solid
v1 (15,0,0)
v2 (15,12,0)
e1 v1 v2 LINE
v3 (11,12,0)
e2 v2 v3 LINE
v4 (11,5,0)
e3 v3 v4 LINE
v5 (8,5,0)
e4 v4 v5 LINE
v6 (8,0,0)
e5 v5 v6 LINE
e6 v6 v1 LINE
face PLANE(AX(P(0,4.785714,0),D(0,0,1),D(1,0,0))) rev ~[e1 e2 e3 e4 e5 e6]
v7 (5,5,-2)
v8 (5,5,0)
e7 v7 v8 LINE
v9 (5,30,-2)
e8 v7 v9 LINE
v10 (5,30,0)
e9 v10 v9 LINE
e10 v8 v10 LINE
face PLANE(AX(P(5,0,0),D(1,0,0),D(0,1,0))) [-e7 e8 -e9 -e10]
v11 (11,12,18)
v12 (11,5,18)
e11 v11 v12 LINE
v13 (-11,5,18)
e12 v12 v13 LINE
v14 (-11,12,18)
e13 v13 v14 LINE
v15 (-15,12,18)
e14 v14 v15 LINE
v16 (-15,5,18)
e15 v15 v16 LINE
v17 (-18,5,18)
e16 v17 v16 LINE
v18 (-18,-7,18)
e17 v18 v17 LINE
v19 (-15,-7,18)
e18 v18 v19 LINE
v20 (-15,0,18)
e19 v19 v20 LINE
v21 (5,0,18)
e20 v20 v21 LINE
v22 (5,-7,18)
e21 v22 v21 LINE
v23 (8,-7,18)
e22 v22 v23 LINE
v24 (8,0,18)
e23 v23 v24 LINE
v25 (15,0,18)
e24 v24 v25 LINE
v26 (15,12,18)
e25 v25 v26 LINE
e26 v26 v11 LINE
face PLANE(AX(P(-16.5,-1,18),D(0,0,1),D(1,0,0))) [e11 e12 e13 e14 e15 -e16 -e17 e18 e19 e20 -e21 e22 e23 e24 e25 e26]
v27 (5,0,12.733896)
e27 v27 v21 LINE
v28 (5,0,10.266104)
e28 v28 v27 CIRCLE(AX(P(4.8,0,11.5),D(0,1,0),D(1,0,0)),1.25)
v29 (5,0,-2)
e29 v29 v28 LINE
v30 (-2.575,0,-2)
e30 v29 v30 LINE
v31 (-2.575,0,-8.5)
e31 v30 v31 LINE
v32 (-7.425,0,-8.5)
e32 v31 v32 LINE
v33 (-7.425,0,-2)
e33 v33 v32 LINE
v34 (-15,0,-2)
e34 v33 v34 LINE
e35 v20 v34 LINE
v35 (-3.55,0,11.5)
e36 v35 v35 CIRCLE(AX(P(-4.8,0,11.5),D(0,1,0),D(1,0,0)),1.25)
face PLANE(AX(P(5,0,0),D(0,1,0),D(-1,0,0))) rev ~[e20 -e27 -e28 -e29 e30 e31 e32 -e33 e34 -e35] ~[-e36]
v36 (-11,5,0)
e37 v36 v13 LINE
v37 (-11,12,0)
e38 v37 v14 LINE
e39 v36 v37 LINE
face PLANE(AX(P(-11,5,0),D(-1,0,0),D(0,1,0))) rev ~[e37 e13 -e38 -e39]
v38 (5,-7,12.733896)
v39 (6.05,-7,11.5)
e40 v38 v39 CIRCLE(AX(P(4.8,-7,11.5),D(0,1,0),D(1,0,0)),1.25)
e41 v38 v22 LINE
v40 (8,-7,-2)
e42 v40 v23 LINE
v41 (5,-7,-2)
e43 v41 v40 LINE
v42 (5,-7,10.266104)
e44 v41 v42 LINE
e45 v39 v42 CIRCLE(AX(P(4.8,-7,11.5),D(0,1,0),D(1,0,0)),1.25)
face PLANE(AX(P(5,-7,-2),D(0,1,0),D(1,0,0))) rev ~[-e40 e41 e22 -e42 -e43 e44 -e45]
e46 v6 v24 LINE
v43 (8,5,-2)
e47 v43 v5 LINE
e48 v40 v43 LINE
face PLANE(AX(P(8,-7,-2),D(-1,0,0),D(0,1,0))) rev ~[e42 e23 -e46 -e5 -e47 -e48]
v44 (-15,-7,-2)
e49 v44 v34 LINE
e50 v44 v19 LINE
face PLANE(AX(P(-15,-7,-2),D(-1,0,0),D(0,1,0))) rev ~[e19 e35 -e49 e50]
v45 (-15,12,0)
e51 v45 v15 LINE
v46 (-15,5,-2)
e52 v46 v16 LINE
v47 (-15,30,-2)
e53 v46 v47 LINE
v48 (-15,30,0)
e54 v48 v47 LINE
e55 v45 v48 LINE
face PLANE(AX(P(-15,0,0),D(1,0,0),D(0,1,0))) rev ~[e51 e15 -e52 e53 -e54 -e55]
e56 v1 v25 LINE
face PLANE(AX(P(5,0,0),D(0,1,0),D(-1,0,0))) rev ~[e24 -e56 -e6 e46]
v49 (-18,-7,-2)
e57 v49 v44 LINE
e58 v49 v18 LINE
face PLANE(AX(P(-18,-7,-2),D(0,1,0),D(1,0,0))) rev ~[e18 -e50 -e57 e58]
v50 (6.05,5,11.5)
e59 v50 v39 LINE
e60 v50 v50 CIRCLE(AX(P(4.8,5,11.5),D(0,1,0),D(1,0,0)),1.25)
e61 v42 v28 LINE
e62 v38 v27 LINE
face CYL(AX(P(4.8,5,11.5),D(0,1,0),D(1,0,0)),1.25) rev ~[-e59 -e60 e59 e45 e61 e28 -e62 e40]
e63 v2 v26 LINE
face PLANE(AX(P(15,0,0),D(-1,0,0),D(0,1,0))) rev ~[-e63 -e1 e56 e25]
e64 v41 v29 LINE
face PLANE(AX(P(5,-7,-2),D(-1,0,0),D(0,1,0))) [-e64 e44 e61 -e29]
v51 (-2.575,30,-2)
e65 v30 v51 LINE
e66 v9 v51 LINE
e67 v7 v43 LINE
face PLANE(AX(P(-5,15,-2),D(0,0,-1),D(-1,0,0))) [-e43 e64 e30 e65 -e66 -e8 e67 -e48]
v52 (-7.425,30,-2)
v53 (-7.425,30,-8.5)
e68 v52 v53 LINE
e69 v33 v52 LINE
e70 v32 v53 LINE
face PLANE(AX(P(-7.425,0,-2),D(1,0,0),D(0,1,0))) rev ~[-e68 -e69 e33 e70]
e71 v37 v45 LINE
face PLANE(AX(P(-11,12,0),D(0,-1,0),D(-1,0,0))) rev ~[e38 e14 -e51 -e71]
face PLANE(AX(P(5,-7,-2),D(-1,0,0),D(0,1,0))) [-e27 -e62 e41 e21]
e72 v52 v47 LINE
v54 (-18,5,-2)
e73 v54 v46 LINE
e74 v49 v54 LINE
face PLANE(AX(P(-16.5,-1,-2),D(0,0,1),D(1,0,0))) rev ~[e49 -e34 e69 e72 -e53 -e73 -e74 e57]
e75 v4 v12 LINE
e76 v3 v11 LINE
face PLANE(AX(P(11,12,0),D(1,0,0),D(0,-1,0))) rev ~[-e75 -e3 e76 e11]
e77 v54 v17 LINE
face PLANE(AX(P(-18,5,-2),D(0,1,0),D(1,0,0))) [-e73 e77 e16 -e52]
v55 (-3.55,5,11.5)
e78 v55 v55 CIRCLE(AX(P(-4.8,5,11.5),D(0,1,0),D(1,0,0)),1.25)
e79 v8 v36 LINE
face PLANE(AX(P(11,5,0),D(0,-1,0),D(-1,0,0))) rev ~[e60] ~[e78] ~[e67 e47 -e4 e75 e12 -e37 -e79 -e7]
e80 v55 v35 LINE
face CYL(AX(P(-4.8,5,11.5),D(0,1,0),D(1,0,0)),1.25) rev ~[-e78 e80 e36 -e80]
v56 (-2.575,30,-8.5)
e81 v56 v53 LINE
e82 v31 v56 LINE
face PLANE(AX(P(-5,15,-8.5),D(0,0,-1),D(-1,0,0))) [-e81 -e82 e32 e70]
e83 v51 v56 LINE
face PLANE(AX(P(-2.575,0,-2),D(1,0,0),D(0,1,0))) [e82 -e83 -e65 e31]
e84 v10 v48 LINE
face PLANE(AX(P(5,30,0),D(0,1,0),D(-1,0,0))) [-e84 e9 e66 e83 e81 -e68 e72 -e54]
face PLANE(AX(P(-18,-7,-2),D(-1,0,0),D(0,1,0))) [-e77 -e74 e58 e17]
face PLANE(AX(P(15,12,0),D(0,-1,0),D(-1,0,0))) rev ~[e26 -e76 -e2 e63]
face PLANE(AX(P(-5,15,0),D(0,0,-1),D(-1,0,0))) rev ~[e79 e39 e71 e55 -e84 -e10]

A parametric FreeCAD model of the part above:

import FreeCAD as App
import Part
import Sketcher

doc = App.newDocument("Part")
body = doc.addObject("PartDesign::Body", "Body")

sketch1 = body.newObject("Sketcher::SketchObject", "Sketch")
sketch1.AttachmentSupport = (doc.getObject("XY_Plane"), [""])
sketch1.MapMode = "FlatFace"
sketch1.addGeometry([
    Part.LineSegment(App.Vector(-15, 12, 0), App.Vector(-15, 0, 0)),
    Part.LineSegment(App.Vector(-15, 0, 0), App.Vector(15, 0, 0)),
    Part.LineSegment(App.Vector(15, 0, 0), App.Vector(15, 12, 0)),
    Part.LineSegment(App.Vector(15, 12, 0), App.Vector(11, 12, 0)),
    Part.LineSegment(App.Vector(11, 12, 0), App.Vector(11, 5, 0)),
    Part.LineSegment(App.Vector(11, 5, 0), App.Vector(-11, 5, 0)),
    Part.LineSegment(App.Vector(-11, 5, 0), App.Vector(-11, 12, 0)),
    Part.LineSegment(App.Vector(-11, 12, 0), App.Vector(-15, 12, 0)),
], False)
sketch1.addConstraint([
    Sketcher.Constraint("Coincident", 0, 2, 1, 1),
    Sketcher.Constraint("Coincident", 1, 2, 2, 1),
    Sketcher.Constraint("Coincident", 2, 2, 3, 1),
    Sketcher.Constraint("Coincident", 3, 2, 4, 1),
    Sketcher.Constraint("Coincident", 4, 2, 5, 1),
    Sketcher.Constraint("Coincident", 5, 2, 6, 1),
    Sketcher.Constraint("Coincident", 6, 2, 7, 1),
    Sketcher.Constraint("Coincident", 7, 2, 0, 1),
    Sketcher.Constraint("Vertical", 0),
    Sketcher.Constraint("Horizontal", 1),
    Sketcher.Constraint("Vertical", 2),
    Sketcher.Constraint("Horizontal", 3),
    Sketcher.Constraint("Vertical", 4),
    Sketcher.Constraint("Horizontal", 5),
    Sketcher.Constraint("Vertical", 6),
    Sketcher.Constraint("Horizontal", 7),
    Sketcher.Constraint("Symmetric", 0, 2, 1, 2, -1, 1),
    Sketcher.Constraint("Symmetric", 3, 2, 6, 2, -2),
    Sketcher.Constraint("DistanceX", 1, 1, 1, 2, 30.0),
    Sketcher.Constraint("DistanceX", 3, 2, 3, 1, 4.0),
    Sketcher.Constraint("DistanceY", 0, 2, 0, 1, 12.0),
    Sketcher.Constraint("DistanceY", 4, 2, 4, 1, 7.0),
])
pad1 = body.newObject("PartDesign::Pad", "Pad")
pad1.Profile = sketch1
pad1.Length = 18

sketch2 = body.newObject("Sketcher::SketchObject", "Sketch001")
sketch2.AttachmentSupport = (doc.getObject("XY_Plane"), [""])
sketch2.MapMode = "FlatFace"
sketch2.addGeometry([
    Part.LineSegment(App.Vector(5, 30, 0), App.Vector(5, 0, 0)),
    Part.LineSegment(App.Vector(5, 0, 0), App.Vector(-15, 0, 0)),
    Part.LineSegment(App.Vector(-15, 0, 0), App.Vector(-15, 30, 0)),
    Part.LineSegment(App.Vector(-15, 30, 0), App.Vector(5, 30, 0)),
], False)
sketch2.addConstraint([
    Sketcher.Constraint("Coincident", 0, 2, 1, 1),
    Sketcher.Constraint("Coincident", 1, 2, 2, 1),
    Sketcher.Constraint("Coincident", 2, 2, 3, 1),
    Sketcher.Constraint("Coincident", 3, 2, 0, 1),
    Sketcher.Constraint("Vertical", 0),
    Sketcher.Constraint("Horizontal", 1),
    Sketcher.Constraint("Vertical", 2),
    Sketcher.Constraint("Horizontal", 3),
    Sketcher.Constraint("PointOnObject", 0, 2, -1),
    Sketcher.Constraint("DistanceX", 1, 2, 1, 1, 20.0),
    Sketcher.Constraint("DistanceY", 0, 2, 0, 1, 30.0),
    Sketcher.Constraint("DistanceX", -1, 1, 0, 2, 5.0),
])
pad2 = body.newObject("PartDesign::Pad", "Pad001")
pad2.Profile = sketch2
pad2.Length = 2
pad2.Reversed = True

sketch3 = body.newObject("Sketcher::SketchObject", "Sketch002")
sketch3.AttachmentSupport = (doc.getObject("XY_Plane"), [""])
sketch3.MapMode = "FlatFace"
sketch3.AttachmentOffset = App.Placement(App.Vector(0, 0, -2), App.Rotation())
sketch3.addGeometry([
    Part.LineSegment(App.Vector(-2.575, 30, 0), App.Vector(-2.575, 0, 0)),
    Part.LineSegment(App.Vector(-2.575, 0, 0), App.Vector(-7.425, 0, 0)),
    Part.LineSegment(App.Vector(-7.425, 0, 0), App.Vector(-7.425, 30, 0)),
    Part.LineSegment(App.Vector(-7.425, 30, 0), App.Vector(-2.575, 30, 0)),
], False)
sketch3.addConstraint([
    Sketcher.Constraint("Coincident", 0, 2, 1, 1),
    Sketcher.Constraint("Coincident", 1, 2, 2, 1),
    Sketcher.Constraint("Coincident", 2, 2, 3, 1),
    Sketcher.Constraint("Coincident", 3, 2, 0, 1),
    Sketcher.Constraint("Vertical", 0),
    Sketcher.Constraint("Horizontal", 1),
    Sketcher.Constraint("Vertical", 2),
    Sketcher.Constraint("Horizontal", 3),
    Sketcher.Constraint("PointOnObject", 0, 2, -1),
    Sketcher.Constraint("DistanceY", 0, 2, 0, 1, 30.0),
    Sketcher.Constraint("DistanceX", 1, 2, 1, 1, 4.85),
    Sketcher.Constraint("DistanceX", 0, 2, -1, 1, 2.575),
])
pad3 = body.newObject("PartDesign::Pad", "Pad002")
pad3.Profile = sketch3
pad3.Length = 6.5
pad3.Reversed = True

sketch4 = body.newObject("Sketcher::SketchObject", "Sketch003")
sketch4.AttachmentSupport = (doc.getObject("XY_Plane"), [""])
sketch4.MapMode = "FlatFace"
sketch4.AttachmentOffset = App.Placement(App.Vector(0, 0, -2), App.Rotation())
sketch4.addGeometry([
    Part.LineSegment(App.Vector(-18, 5, 0), App.Vector(-18, -7, 0)),
    Part.LineSegment(App.Vector(-18, -7, 0), App.Vector(-15, -7, 0)),
    Part.LineSegment(App.Vector(-15, -7, 0), App.Vector(-15, 5, 0)),
    Part.LineSegment(App.Vector(-15, 5, 0), App.Vector(-18, 5, 0)),
    Part.LineSegment(App.Vector(5, 5, 0), App.Vector(5, -7, 0)),
    Part.LineSegment(App.Vector(5, -7, 0), App.Vector(8, -7, 0)),
    Part.LineSegment(App.Vector(8, -7, 0), App.Vector(8, 5, 0)),
    Part.LineSegment(App.Vector(8, 5, 0), App.Vector(5, 5, 0)),
], False)
sketch4.addConstraint([
    Sketcher.Constraint("Coincident", 0, 2, 1, 1),
    Sketcher.Constraint("Coincident", 1, 2, 2, 1),
    Sketcher.Constraint("Coincident", 2, 2, 3, 1),
    Sketcher.Constraint("Coincident", 3, 2, 0, 1),
    Sketcher.Constraint("Coincident", 4, 2, 5, 1),
    Sketcher.Constraint("Coincident", 5, 2, 6, 1),
    Sketcher.Constraint("Coincident", 6, 2, 7, 1),
    Sketcher.Constraint("Coincident", 7, 2, 4, 1),
    Sketcher.Constraint("Vertical", 0),
    Sketcher.Constraint("Horizontal", 1),
    Sketcher.Constraint("Vertical", 2),
    Sketcher.Constraint("Horizontal", 3),
    Sketcher.Constraint("Vertical", 4),
    Sketcher.Constraint("Horizontal", 5),
    Sketcher.Constraint("Vertical", 6),
    Sketcher.Constraint("Horizontal", 7),
    Sketcher.Constraint("Horizontal", 1, 2, 4, 2),
    Sketcher.Constraint("Horizontal", 3, 2, 6, 2),
    Sketcher.Constraint("Equal", 3, 5),
    Sketcher.Constraint("DistanceX", 1, 1, 1, 2, 3.0),
    Sketcher.Constraint("DistanceY", 0, 2, 0, 1, 12.0),
    Sketcher.Constraint("DistanceX", 0, 2, -1, 1, 18.0),
    Sketcher.Constraint("DistanceY", 0, 2, -1, 1, 7.0),
    Sketcher.Constraint("DistanceX", -1, 1, 4, 2, 5.0),
])
pad4 = body.newObject("PartDesign::Pad", "Pad003")
pad4.Profile = sketch4
pad4.Length = 20

sketch5 = body.newObject("Sketcher::SketchObject", "Sketch004")
sketch5.AttachmentSupport = (doc.getObject("XZ_Plane"), [""])
sketch5.MapMode = "FlatFace"
sketch5.AttachmentOffset = App.Placement(App.Vector(0, 0, -5), App.Rotation())
sketch5.addGeometry([
    Part.Circle(App.Vector(-4.8, 11.5, 0), App.Vector(0, 0, 1), 1.25),
    Part.Circle(App.Vector(4.8, 11.5, 0), App.Vector(0, 0, 1), 1.25),
], False)
sketch5.addConstraint([
    Sketcher.Constraint("Equal", 0, 1),
    Sketcher.Constraint("Symmetric", 0, 3, 1, 3, -2),
    Sketcher.Constraint("Diameter", 0, 2.5),
    Sketcher.Constraint("DistanceX", 0, 3, -1, 1, 4.8),
    Sketcher.Constraint("DistanceY", -1, 1, 0, 3, 11.5),
])
pocket1 = body.newObject("PartDesign::Pocket", "Pocket")
pocket1.Profile = sketch5
pocket1.Length = 18
pocket1.Reversed = True

doc.recompute()
